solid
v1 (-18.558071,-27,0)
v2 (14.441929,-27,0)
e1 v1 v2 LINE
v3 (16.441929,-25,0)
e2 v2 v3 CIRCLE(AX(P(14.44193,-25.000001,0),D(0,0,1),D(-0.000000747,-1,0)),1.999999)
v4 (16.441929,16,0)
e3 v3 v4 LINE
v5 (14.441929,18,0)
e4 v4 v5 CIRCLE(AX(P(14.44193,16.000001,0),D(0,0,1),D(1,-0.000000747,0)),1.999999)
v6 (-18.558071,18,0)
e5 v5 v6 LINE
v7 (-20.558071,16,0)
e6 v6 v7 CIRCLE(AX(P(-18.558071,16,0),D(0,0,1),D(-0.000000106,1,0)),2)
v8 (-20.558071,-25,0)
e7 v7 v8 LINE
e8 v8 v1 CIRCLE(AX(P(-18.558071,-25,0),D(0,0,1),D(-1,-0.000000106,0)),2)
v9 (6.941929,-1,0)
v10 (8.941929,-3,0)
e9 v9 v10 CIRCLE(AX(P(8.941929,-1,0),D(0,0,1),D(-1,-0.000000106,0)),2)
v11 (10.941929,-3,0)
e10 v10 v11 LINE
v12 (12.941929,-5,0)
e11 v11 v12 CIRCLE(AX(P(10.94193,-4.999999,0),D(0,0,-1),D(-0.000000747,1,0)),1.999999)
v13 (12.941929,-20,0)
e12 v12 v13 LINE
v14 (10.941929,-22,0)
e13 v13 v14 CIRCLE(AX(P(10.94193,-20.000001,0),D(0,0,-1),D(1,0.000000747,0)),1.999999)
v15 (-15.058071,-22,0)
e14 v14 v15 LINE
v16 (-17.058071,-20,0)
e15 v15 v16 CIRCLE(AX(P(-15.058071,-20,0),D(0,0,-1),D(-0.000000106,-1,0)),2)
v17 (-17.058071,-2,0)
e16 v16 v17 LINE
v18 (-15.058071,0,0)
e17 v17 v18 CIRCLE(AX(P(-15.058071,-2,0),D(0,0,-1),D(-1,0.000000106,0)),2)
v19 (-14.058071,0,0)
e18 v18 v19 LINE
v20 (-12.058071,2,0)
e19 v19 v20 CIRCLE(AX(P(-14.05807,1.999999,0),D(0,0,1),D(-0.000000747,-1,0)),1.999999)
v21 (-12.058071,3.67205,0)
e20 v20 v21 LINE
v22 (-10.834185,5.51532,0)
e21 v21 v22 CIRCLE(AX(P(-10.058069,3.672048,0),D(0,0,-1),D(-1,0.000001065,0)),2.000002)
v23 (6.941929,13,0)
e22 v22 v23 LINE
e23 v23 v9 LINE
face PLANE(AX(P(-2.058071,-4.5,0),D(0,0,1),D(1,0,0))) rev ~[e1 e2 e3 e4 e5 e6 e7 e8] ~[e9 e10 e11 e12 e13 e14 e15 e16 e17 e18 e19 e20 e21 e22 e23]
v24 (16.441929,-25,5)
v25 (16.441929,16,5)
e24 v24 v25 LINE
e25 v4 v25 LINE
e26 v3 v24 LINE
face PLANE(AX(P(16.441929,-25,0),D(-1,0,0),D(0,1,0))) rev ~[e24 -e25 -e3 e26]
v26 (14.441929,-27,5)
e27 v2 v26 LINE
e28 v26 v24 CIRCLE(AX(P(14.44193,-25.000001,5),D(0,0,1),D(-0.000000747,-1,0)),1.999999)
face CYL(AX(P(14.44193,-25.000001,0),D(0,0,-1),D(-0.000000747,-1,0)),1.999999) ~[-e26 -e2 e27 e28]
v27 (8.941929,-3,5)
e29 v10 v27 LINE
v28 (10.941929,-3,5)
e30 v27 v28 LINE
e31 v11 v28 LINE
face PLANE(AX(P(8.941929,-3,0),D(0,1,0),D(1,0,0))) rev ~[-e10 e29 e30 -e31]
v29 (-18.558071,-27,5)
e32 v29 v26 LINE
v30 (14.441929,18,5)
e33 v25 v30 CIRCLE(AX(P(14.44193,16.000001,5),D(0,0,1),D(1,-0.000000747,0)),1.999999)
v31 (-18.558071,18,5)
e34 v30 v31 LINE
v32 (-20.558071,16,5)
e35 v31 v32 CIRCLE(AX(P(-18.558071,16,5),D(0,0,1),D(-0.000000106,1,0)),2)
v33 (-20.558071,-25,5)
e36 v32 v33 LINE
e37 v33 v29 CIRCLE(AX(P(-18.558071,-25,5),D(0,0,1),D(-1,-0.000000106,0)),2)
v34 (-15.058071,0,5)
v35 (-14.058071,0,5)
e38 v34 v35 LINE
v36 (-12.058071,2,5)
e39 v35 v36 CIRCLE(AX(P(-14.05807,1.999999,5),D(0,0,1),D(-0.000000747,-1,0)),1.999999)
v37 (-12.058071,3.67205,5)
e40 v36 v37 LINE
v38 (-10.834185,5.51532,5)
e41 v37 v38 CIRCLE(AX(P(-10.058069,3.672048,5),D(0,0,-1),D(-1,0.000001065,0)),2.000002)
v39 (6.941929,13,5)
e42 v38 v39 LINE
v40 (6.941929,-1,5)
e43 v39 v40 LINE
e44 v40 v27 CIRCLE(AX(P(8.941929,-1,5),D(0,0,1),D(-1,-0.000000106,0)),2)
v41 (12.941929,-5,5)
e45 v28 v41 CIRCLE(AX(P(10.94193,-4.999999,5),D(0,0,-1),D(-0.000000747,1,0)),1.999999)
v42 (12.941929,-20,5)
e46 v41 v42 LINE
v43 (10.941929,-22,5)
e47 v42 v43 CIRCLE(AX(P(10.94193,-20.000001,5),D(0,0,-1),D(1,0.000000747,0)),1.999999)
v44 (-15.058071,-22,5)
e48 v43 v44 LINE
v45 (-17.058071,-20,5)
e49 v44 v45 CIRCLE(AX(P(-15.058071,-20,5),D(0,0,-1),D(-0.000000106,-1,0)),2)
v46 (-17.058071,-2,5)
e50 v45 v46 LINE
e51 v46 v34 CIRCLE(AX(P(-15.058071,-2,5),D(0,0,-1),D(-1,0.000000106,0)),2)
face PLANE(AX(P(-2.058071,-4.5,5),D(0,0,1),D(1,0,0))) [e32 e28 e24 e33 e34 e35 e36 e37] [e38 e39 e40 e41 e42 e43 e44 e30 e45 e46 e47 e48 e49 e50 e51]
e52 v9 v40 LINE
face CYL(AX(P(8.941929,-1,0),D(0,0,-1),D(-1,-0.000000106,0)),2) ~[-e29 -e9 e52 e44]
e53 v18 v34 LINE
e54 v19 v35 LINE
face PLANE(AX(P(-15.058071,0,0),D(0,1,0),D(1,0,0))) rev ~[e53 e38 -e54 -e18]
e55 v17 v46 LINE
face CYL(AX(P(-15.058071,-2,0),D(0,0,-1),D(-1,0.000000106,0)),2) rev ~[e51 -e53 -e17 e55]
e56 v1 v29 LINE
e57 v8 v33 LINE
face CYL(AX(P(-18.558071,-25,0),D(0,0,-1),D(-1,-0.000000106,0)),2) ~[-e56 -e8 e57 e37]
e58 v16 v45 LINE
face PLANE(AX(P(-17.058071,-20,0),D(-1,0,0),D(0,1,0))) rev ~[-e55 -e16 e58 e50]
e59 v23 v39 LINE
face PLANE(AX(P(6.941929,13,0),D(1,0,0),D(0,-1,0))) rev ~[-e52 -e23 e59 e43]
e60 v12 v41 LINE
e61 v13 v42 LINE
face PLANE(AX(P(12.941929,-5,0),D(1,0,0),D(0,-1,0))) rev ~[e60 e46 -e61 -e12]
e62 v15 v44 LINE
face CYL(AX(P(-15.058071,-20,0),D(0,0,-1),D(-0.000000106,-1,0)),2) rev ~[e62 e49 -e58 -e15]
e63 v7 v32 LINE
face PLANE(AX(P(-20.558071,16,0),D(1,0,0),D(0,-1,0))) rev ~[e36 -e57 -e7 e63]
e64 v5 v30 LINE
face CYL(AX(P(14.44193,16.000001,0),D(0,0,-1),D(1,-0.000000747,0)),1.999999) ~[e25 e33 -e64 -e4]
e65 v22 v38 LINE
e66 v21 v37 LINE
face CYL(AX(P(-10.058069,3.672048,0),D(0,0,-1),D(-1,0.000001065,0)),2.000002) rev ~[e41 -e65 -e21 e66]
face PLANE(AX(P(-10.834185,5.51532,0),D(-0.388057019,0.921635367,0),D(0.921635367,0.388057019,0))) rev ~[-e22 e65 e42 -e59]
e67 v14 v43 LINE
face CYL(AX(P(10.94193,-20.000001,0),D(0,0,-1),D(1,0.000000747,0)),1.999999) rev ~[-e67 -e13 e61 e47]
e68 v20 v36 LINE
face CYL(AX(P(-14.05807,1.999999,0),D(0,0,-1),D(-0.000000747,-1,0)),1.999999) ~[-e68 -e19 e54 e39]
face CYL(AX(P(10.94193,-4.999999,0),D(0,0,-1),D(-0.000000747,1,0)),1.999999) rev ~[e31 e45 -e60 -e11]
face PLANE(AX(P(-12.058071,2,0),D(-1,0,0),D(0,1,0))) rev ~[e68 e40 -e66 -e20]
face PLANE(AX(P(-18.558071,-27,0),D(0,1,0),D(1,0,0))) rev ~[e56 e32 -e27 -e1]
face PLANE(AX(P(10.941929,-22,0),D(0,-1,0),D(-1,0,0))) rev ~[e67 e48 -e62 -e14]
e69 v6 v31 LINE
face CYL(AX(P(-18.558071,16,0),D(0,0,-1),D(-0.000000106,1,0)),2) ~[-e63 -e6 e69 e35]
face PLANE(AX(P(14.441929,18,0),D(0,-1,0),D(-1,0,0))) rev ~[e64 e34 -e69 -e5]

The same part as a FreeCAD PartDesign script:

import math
import FreeCAD as App
import Part
import Sketcher
from FreeCAD import Vector
Q = App.Units.Quantity

doc = App.newDocument("Part")
body = doc.addObject("PartDesign::Body", "Body")

sketch1 = doc.addObject("Sketcher::SketchObject", "Sketch")
body.addObject(sketch1)
sketch1.AttachmentSupport = (doc.XY_Plane, [""])
sketch1.MapMode = "FlatFace"
sketch1.addGeometry(Part.LineSegment(Vector(14.441929, 18, 0), Vector(-18.558071, 18, 0)), False)
sketch1.addGeometry(Part.ArcOfCircle(Part.Circle(Vector(-18.558071, 16, 0), Vector(0, 0, 1), 2), math.radians(90.000006), math.radians(179.999994)), False)
sketch1.addGeometry(Part.LineSegment(Vector(-20.558071, 16, 0), Vector(-20.558071, -25, 0)), False)
sketch1.addGeometry(Part.ArcOfCircle(Part.Circle(Vector(-18.558071, -25, 0), Vector(0, 0, 1), 2), math.radians(-179.999994), math.radians(-90.000006)), False)
sketch1.addGeometry(Part.LineSegment(Vector(-18.558071, -27, 0), Vector(14.441929, -27, 0)), False)
sketch1.addGeometry(Part.ArcOfCircle(Part.Circle(Vector(14.44193, -25.000001, 0), Vector(0, 0, 1), 1.999999), math.radians(-90.000043), math.radians(0.000043)), False)
sketch1.addGeometry(Part.LineSegment(Vector(16.441929, -25, 0), Vector(16.441929, 16, 0)), False)
sketch1.addGeometry(Part.ArcOfCircle(Part.Circle(Vector(14.44193, 16.000001, 0), Vector(0, 0, 1), 1.999999), math.radians(-0.000043), math.radians(90.000043)), False)
sketch1.addGeometry(Part.ArcOfCircle(Part.Circle(Vector(-15.058071, -20, 0), Vector(0, 0, 1), 2), math.radians(-179.999994), math.radians(-90.000006)), False)
sketch1.addGeometry(Part.LineSegment(Vector(-17.058071, -20, 0), Vector(-17.058071, -2, 0)), False)
sketch1.addGeometry(Part.ArcOfCircle(Part.Circle(Vector(-15.058071, -2, 0), Vector(0, 0, 1), 2), math.radians(90.000006), math.radians(179.999994)), False)
sketch1.addGeometry(Part.LineSegment(Vector(-15.058071, 0, 0), Vector(-14.058071, 0, 0)), False)
sketch1.addGeometry(Part.ArcOfCircle(Part.Circle(Vector(-14.05807, 1.999999, 0), Vector(0, 0, 1), 1.999999), math.radians(-90.000043), math.radians(0.000043)), False)
sketch1.addGeometry(Part.LineSegment(Vector(-12.058071, 2, 0), Vector(-12.058071, 3.67205, 0)), False)
sketch1.addGeometry(Part.ArcOfCircle(Part.Circle(Vector(-10.058069, 3.672048, 0), Vector(0, 0, 1), 2.000002), math.radians(112.833694), math.radians(179.999939)), False)
sketch1.addGeometry(Part.LineSegment(Vector(-10.834185, 5.51532, 0), Vector(6.941929, 13, 0)), False)
sketch1.addGeometry(Part.LineSegment(Vector(6.941929, 13, 0), Vector(6.941929, -1, 0)), False)
sketch1.addGeometry(Part.ArcOfCircle(Part.Circle(Vector(8.941929, -1, 0), Vector(0, 0, 1), 2), math.radians(-179.999994), math.radians(-90.000006)), False)
sketch1.addGeometry(Part.LineSegment(Vector(8.941929, -3, 0), Vector(10.941929, -3, 0)), False)
sketch1.addGeometry(Part.ArcOfCircle(Part.Circle(Vector(10.94193, -4.999999, 0), Vector(0, 0, 1), 1.999999), math.radians(-0.000043), math.radians(90.000043)), False)
sketch1.addGeometry(Part.LineSegment(Vector(12.941929, -5, 0), Vector(12.941929, -20, 0)), False)
sketch1.addGeometry(Part.ArcOfCircle(Part.Circle(Vector(10.94193, -20.000001, 0), Vector(0, 0, 1), 1.999999), math.radians(-90.000043), math.radians(0.000043)), False)
sketch1.addGeometry(Part.LineSegment(Vector(10.941929, -22, 0), Vector(-15.058071, -22, 0)), False)
sketch1.addConstraint(Sketcher.Constraint("Tangent", 0, 2, 1, 1))
sketch1.addConstraint(Sketcher.Constraint("Tangent", 1, 2, 2, 1))
sketch1.addConstraint(Sketcher.Constraint("Tangent", 2, 2, 3, 1))
sketch1.addConstraint(Sketcher.Constraint("Tangent", 3, 2, 4, 1))
sketch1.addConstraint(Sketcher.Constraint("Tangent", 4, 2, 5, 1))
sketch1.addConstraint(Sketcher.Constraint("Tangent", 5, 2, 6, 1))
sketch1.addConstraint(Sketcher.Constraint("Tangent", 6, 2, 7, 1))
sketch1.addConstraint(Sketcher.Constraint("Tangent", 7, 2, 0, 1))
sketch1.addConstraint(Sketcher.Constraint("Tangent", 8, 1, 9, 1))
sketch1.addConstraint(Sketcher.Constraint("Tangent", 9, 2, 10, 2))
sketch1.addConstraint(Sketcher.Constraint("Tangent", 10, 1, 11, 1))
sketch1.addConstraint(Sketcher.Constraint("Tangent", 11, 2, 12, 1))
sketch1.addConstraint(Sketcher.Constraint("Tangent", 12, 2, 13, 1))
sketch1.addConstraint(Sketcher.Constraint("Tangent", 13, 2, 14, 2))
sketch1.addConstraint(Sketcher.Constraint("Tangent", 14, 1, 15, 1))
sketch1.addConstraint(Sketcher.Constraint("Coincident", 15, 2, 16, 1))
sketch1.addConstraint(Sketcher.Constraint("Tangent", 16, 2, 17, 1))
sketch1.addConstraint(Sketcher.Constraint("Tangent", 17, 2, 18, 1))
sketch1.addConstraint(Sketcher.Constraint("Tangent", 18, 2, 19, 2))
sketch1.addConstraint(Sketcher.Constraint("Tangent", 19, 1, 20, 1))
sketch1.addConstraint(Sketcher.Constraint("Tangent", 20, 2, 21, 2))
sketch1.addConstraint(Sketcher.Constraint("Tangent", 21, 1, 22, 1))
sketch1.addConstraint(Sketcher.Constraint("Tangent", 22, 2, 8, 2))
sketch1.addConstraint(Sketcher.Constraint("Horizontal", 0))
sketch1.addConstraint(Sketcher.Constraint("Vertical", 2))
sketch1.addConstraint(Sketcher.Constraint("Horizontal", 4))
sketch1.addConstraint(Sketcher.Constraint("Vertical", 6))
sketch1.addConstraint(Sketcher.Constraint("Vertical", 9))
sketch1.addConstraint(Sketcher.Constraint("Horizontal", 11))
sketch1.addConstraint(Sketcher.Constraint("Vertical", 13))
sketch1.addConstraint(Sketcher.Constraint("Vertical", 16))
sketch1.addConstraint(Sketcher.Constraint("Horizontal", 18))
sketch1.addConstraint(Sketcher.Constraint("Vertical", 20))
sketch1.addConstraint(Sketcher.Constraint("Horizontal", 22))
sketch1.addConstraint(Sketcher.Constraint("Equal", 1, 3))
sketch1.addConstraint(Sketcher.Constraint("Equal", 3, 5))
sketch1.addConstraint(Sketcher.Constraint("Equal", 5, 7))
sketch1.addConstraint(Sketcher.Constraint("Equal", 7, 8))
sketch1.addConstraint(Sketcher.Constraint("Equal", 8, 10))
sketch1.addConstraint(Sketcher.Constraint("Equal", 10, 12))
sketch1.addConstraint(Sketcher.Constraint("Equal", 10, 14))
sketch1.addConstraint(Sketcher.Constraint("Equal", 14, 17))
sketch1.addConstraint(Sketcher.Constraint("Equal", 17, 19))
sketch1.addConstraint(Sketcher.Constraint("Equal", 19, 21))
sketch1.addConstraint(Sketcher.Constraint("PointOnObject", 10, 1, -1))
sketch1.addConstraint(Sketcher.Constraint("Radius", 1, Q("2 mm")))
sketch1.addConstraint(Sketcher.Constraint("DistanceX", 0, 2, 0, 1, Q("33 mm")))
sketch1.addConstraint(Sketcher.Constraint("DistanceX", 11, 1, 11, 2, Q("1 mm")))
sketch1.addConstraint(Sketcher.Constraint("DistanceX", 18, 1, 18, 2, Q("2 mm")))
sketch1.addConstraint(Sketcher.Constraint("DistanceX", 22, 2, 22, 1, Q("26 mm")))
sketch1.addConstraint(Sketcher.Constraint("DistanceY", 2, 2, 2, 1, Q("41 mm")))
sketch1.addConstraint(Sketcher.Constraint("DistanceY", 9, 1, 9, 2, Q("18 mm")))
sketch1.addConstraint(Sketcher.Constraint("DistanceY", 16, 2, 16, 1, Q("14 mm")))
sketch1.addConstraint(Sketcher.Constraint("DistanceY", 20, 2, 20, 1, Q("15 mm")))
sketch1.addConstraint(Sketcher.Constraint("DistanceY", -1, 1, 1, 3, Q("16 mm")))
sketch1.addConstraint(Sketcher.Constraint("DistanceX", 3, 3, 8, 3, Q("3.5 mm")))
sketch1.addConstraint(Sketcher.Constraint("DistanceY", 13, 1, 13, 2, Q("1.67205 mm")))
sketch1.addConstraint(Sketcher.Constraint("DistanceX", 1, 3, -1, 1, Q("18.558071 mm")))
pad1 = doc.addObject("PartDesign::Pad", "Pad")
body.addObject(pad1)
pad1.Profile = sketch1
pad1.Length = 5

doc.recompute()
